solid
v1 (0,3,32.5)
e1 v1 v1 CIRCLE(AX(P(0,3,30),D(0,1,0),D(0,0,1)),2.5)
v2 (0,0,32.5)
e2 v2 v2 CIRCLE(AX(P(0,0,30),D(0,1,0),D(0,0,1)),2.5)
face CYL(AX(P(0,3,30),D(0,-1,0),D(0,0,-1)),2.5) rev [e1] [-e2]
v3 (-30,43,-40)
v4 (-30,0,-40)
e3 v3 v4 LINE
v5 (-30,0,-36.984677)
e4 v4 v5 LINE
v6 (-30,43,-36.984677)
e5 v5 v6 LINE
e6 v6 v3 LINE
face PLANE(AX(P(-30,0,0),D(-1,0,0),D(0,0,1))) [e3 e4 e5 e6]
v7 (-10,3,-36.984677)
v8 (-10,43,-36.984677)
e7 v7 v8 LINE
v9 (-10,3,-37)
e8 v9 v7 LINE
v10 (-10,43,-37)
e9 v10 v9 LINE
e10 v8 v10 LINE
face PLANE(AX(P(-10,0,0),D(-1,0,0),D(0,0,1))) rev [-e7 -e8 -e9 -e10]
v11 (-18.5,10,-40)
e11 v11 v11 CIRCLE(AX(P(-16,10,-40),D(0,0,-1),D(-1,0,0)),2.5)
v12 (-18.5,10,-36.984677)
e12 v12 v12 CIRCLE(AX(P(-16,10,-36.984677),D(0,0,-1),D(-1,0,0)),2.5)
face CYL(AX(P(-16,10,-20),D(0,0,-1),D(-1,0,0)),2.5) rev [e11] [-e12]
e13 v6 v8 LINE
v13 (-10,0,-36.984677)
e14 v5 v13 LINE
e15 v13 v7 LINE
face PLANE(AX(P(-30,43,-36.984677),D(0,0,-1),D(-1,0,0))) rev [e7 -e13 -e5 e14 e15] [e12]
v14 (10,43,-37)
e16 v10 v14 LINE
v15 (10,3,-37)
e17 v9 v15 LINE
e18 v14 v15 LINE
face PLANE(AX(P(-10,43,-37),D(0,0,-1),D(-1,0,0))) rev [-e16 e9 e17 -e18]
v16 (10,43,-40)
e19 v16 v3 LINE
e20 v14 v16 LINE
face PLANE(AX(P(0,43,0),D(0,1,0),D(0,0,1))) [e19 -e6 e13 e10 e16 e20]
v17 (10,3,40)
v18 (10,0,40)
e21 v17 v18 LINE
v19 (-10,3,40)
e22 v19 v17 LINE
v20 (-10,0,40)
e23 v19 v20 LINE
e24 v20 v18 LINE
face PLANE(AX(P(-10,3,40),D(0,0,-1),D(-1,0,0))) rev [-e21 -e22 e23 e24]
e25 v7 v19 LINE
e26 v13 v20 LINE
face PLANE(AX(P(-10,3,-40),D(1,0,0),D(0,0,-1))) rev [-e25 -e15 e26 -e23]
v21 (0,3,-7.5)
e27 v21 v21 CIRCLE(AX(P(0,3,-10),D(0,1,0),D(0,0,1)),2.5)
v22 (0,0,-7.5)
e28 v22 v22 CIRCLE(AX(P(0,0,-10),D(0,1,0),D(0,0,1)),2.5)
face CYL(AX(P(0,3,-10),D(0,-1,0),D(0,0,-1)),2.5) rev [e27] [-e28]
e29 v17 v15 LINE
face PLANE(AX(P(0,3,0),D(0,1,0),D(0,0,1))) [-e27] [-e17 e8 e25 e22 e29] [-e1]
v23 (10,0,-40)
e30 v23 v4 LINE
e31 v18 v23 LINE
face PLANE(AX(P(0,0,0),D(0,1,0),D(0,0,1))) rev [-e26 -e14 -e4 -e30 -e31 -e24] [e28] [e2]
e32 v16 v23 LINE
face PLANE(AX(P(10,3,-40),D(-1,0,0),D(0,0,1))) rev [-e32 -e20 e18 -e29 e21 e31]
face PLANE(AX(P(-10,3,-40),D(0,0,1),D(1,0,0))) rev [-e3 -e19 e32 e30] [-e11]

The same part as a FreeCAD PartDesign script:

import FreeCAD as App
import Part
import Sketcher
from FreeCAD import Vector
Q = App.Units.Quantity

doc = App.newDocument("Part")
body = doc.addObject("PartDesign::Body", "Body")

# Sketch on XZ plane
sketch1 = body.newObject("Sketcher::SketchObject", "Sketch")
sketch1.AttachmentSupport = (doc.getObject("XZ_Plane"), [""])
sketch1.MapMode = "FlatFace"
sketch1.addGeometry(Part.LineSegment(Vector(-10, -40, 0), Vector(-10, 40, 0)), False)
sketch1.addGeometry(Part.LineSegment(Vector(-10, 40, 0), Vector(10, 40, 0)), False)
sketch1.addGeometry(Part.LineSegment(Vector(10, 40, 0), Vector(10, -40, 0)), False)
sketch1.addGeometry(Part.LineSegment(Vector(10, -40, 0), Vector(-10, -40, 0)), False)
sketch1.addGeometry(Part.Circle(Vector(0, 30, 0), Vector(0, 0, 1), 2.5), False)
sketch1.addGeometry(Part.Circle(Vector(0, -10, 0), Vector(0, 0, 1), 2.5), False)
sketch1.addConstraint(Sketcher.Constraint("Coincident", 0, 2, 1, 1))
sketch1.addConstraint(Sketcher.Constraint("Coincident", 1, 2, 2, 1))
sketch1.addConstraint(Sketcher.Constraint("Coincident", 2, 2, 3, 1))
sketch1.addConstraint(Sketcher.Constraint("Coincident", 3, 2, 0, 1))
sketch1.addConstraint(Sketcher.Constraint("Vertical", 0))
sketch1.addConstraint(Sketcher.Constraint("Horizontal", 1))
sketch1.addConstraint(Sketcher.Constraint("Vertical", 2))
sketch1.addConstraint(Sketcher.Constraint("Horizontal", 3))
sketch1.addConstraint(Sketcher.Constraint("Equal", 4, 5))
sketch1.addConstraint(Sketcher.Constraint("Symmetric", 0, 2, 2, 2, -1, 1))
sketch1.addConstraint(Sketcher.Constraint("PointOnObject", 4, 3, -2))
sketch1.addConstraint(Sketcher.Constraint("PointOnObject", 5, 3, -2))
sketch1.addConstraint(Sketcher.Constraint("Diameter", 4, Q("5 mm")))
sketch1.addConstraint(Sketcher.Constraint("DistanceX", 1, 1, 1, 2, Q("20 mm")))
sketch1.addConstraint(Sketcher.Constraint("DistanceY", 0, 1, 0, 2, Q("80 mm")))
sketch1.addConstraint(Sketcher.Constraint("DistanceY", -1, 1, 4, 3, Q("30 mm")))
sketch1.addConstraint(Sketcher.Constraint("DistanceY", 5, 3, -1, 1, Q("10 mm")))
pad1 = body.newObject("PartDesign::Pad", "Pad")
pad1.Profile = sketch1
pad1.Length = 3
pad1.Reversed = True

# Sketch on XZ plane
sketch2 = body.newObject("Sketcher::SketchObject", "Sketch001")
sketch2.AttachmentSupport = (doc.getObject("XZ_Plane"), [""])
sketch2.MapMode = "FlatFace"
sketch2.AttachmentOffset = App.Placement(Vector(0, 0, -3), App.Rotation())
sketch2.addGeometry(Part.LineSegment(Vector(-10, -40, 0), Vector(-10, -37, 0)), False)
sketch2.addGeometry(Part.LineSegment(Vector(-10, -37, 0), Vector(10, -37, 0)), False)
sketch2.addGeometry(Part.LineSegment(Vector(10, -37, 0), Vector(10, -40, 0)), False)
sketch2.addGeometry(Part.LineSegment(Vector(10, -40, 0), Vector(-10, -40, 0)), False)
sketch2.addConstraint(Sketcher.Constraint("Coincident", 0, 2, 1, 1))
sketch2.addConstraint(Sketcher.Constraint("Coincident", 1, 2, 2, 1))
sketch2.addConstraint(Sketcher.Constraint("Coincident", 2, 2, 3, 1))
sketch2.addConstraint(Sketcher.Constraint("Coincident", 3, 2, 0, 1))
sketch2.addConstraint(Sketcher.Constraint("Vertical", 0))
sketch2.addConstraint(Sketcher.Constraint("Horizontal", 1))
sketch2.addConstraint(Sketcher.Constraint("Vertical", 2))
sketch2.addConstraint(Sketcher.Constraint("Horizontal", 3))
sketch2.addConstraint(Sketcher.Constraint("DistanceX", 1, 1, 1, 2, Q("20 mm")))
sketch2.addConstraint(Sketcher.Constraint("DistanceY", 0, 1, 0, 2, Q("3 mm")))
sketch2.addConstraint(Sketcher.Constraint("DistanceX", 0, 2, -1, 1, Q("10 mm")))
sketch2.addConstraint(Sketcher.Constraint("DistanceY", 0, 2, -1, 1, Q("37 mm")))
pad2 = body.newObject("PartDesign::Pad", "Pad001")
pad2.Profile = sketch2
pad2.Length = 40
pad2.Reversed = True

# Sketch on YZ plane
sketch3 = body.newObject("Sketcher::SketchObject", "Sketch002")
sketch3.AttachmentSupport = (doc.getObject("YZ_Plane"), [""])
sketch3.MapMode = "FlatFace"
sketch3.AttachmentOffset = App.Placement(Vector(0, 0, -10), App.Rotation())
sketch3.addGeometry(Part.LineSegment(Vector(43, -40, 0), Vector(0, -40, 0)), False)
sketch3.addGeometry(Part.LineSegment(Vector(0, -40, 0), Vector(0, -37, 0)), False)
sketch3.addGeometry(Part.LineSegment(Vector(0, -37, 0), Vector(43, -37, 0)), False)
sketch3.addGeometry(Part.LineSegment(Vector(43, -37, 0), Vector(43, -40, 0)), False)
sketch3.addConstraint(Sketcher.Constraint("Coincident", 0, 2, 1, 1))
sketch3.addConstraint(Sketcher.Constraint("Coincident", 1, 2, 2, 1))
sketch3.addConstraint(Sketcher.Constraint("Coincident", 2, 2, 3, 1))
sketch3.addConstraint(Sketcher.Constraint("Coincident", 3, 2, 0, 1))
sketch3.addConstraint(Sketcher.Constraint("Horizontal", 0))
sketch3.addConstraint(Sketcher.Constraint("Vertical", 1))
sketch3.addConstraint(Sketcher.Constraint("Horizontal", 2))
sketch3.addConstraint(Sketcher.Constraint("Vertical", 3))
sketch3.addConstraint(Sketcher.Constraint("PointOnObject", 0, 2, -2))
sketch3.addConstraint(Sketcher.Constraint("DistanceX", 0, 2, 0, 1, Q("43 mm")))
sketch3.addConstraint(Sketcher.Constraint("DistanceY", 0, 2, -1, 1, Q("40 mm")))
sketch3.addConstraint(Sketcher.Constraint("DistanceY", 1, 1, 1, 2, Q("3.015323 mm")))
pad3 = body.newObject("PartDesign::Pad", "Pad002")
pad3.Profile = sketch3
pad3.Length = 20
pad3.Reversed = True

# Sketch on XY plane
sketch4 = body.newObject("Sketcher::SketchObject", "Sketch003")
sketch4.AttachmentSupport = (doc.getObject("XY_Plane"), [""])
sketch4.MapMode = "FlatFace"
sketch4.AttachmentOffset = App.Placement(Vector(0, 0, -40), App.Rotation())
sketch4.addGeometry(Part.Circle(Vector(-16, 10, 0), Vector(0, 0, 1), 2.5), False)
sketch4.addConstraint(Sketcher.Constraint("Diameter", 0, Q("5 mm")))
sketch4.addConstraint(Sketcher.Constraint("DistanceX", 0, 3, -1, 1, Q("16 mm")))
sketch4.addConstraint(Sketcher.Constraint("DistanceY", -1, 1, 0, 3, Q("10 mm")))
pocket1 = body.newObject("PartDesign::Pocket", "Pocket")
pocket1.Profile = sketch4
pocket1.Length = 20
pocket1.Reversed = True

doc.recompute()
